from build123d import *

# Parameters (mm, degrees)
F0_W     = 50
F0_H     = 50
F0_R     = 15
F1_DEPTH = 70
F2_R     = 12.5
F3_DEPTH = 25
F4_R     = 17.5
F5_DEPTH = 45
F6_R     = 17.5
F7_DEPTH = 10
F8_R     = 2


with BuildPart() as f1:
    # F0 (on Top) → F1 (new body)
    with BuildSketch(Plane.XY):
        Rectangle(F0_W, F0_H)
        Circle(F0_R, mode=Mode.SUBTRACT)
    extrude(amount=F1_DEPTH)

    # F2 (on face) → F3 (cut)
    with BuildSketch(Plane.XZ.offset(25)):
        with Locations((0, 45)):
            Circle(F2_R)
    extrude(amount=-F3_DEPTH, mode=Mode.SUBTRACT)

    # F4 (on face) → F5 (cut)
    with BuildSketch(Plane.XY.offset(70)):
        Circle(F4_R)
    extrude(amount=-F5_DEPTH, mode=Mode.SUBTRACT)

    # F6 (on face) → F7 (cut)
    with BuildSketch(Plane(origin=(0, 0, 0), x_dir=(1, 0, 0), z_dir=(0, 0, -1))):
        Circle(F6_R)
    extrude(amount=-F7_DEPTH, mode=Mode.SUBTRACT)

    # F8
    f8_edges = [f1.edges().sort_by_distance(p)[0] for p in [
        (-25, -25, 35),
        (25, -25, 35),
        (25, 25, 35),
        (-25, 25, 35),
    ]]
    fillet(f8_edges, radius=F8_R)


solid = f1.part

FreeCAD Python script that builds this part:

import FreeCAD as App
import Part
import Sketcher

V = App.Vector


def edges_at(feature, points):
    """Names of the edges that pass closest to the given points."""
    edges = feature.Shape.Edges
    near = lambda p: min(range(len(edges)), key=lambda i: edges[i].distToShape(Part.Vertex(*p))[0])
    return sorted({f"Edge{near(p) + 1}" for p in points})


def add_polygon(sketch, points):
    """Adds a closed chain of lines whose ends are joined by coincident constraints."""
    first, n = sketch.GeometryCount, len(points)
    for a, b in zip(points, points[1:] + points[:1]):
        sketch.addGeometry(Part.LineSegment(App.Vector(*a, 0), App.Vector(*b, 0)), False)
    for i in range(n):
        sketch.addConstraint(Sketcher.Constraint("Coincident", first + i, 2, first + (i + 1) % n, 1))

doc = App.newDocument("Part")
params = doc.addObject("Spreadsheet::Sheet", "Params")
for row, (alias, value) in enumerate([
    ("sketch1_diameter", "30 mm"),
    ("sketch1_width", "50 mm"),
    ("pad1_length", "70 mm"),
    ("sketch2_diameter", "25 mm"),
    ("pocket1_length", "25 mm"),
    ("sketch3_diameter", "35 mm"),
    ("pocket2_length", "45 mm"),
    ("sketch4_diameter", "35 mm"),
    ("pocket3_length", "10 mm"),
    ("fillet_radius", "2 mm"),
], start=1):
    params.set(f"A{row}", alias)
    params.set(f"B{row}", "=" + value)
    params.setAlias(f"B{row}", alias)

body = doc.addObject("PartDesign::Body", "Body")

sketch1 = body.newObject("Sketcher::SketchObject", "Sketch")
sketch1.AttachmentSupport = (doc.getObject("XY_Plane"), [""])
sketch1.MapMode = "FlatFace"
add_polygon(sketch1, [(-25, 25), (-25, -25), (25, -25), (25, 25)])
sketch1.addGeometry(Part.Circle(V(0, 0, 0), V(0, 0, 1), 15), False)
sketch1.addConstraint([
    Sketcher.Constraint("Vertical", 0),
    Sketcher.Constraint("Horizontal", 1),
    Sketcher.Constraint("Vertical", 2),
    Sketcher.Constraint("Horizontal", 3),
    Sketcher.Constraint("Coincident", 4, 3, -1, 1),
    Sketcher.Constraint("Symmetric", 0, 2, 2, 2, -1, 1),
    Sketcher.Constraint("Equal", 3, 0),
    Sketcher.Constraint("Diameter", 4, 30.0),
    Sketcher.Constraint("DistanceX", 1, 1, 1, 2, 50.0),
])
sketch1.setExpression("Constraints[11]", "Params.sketch1_diameter")
sketch1.setExpression("Constraints[12]", "Params.sketch1_width")
pad1 = body.newObject("PartDesign::Pad", "Pad")
pad1.Profile = sketch1
pad1.setExpression("Length", "Params.pad1_length")

sketch2 = body.newObject("Sketcher::SketchObject", "Sketch001")
sketch2.AttachmentSupport = (doc.getObject("XZ_Plane"), [""])
sketch2.MapMode = "FlatFace"
sketch2.AttachmentOffset = App.Placement(V(0, 0, 25), App.Rotation())
sketch2.addGeometry(Part.Circle(V(0, 45, 0), V(0, 0, 1), 12), False)
sketch2.addConstraint([
    Sketcher.Constraint("PointOnObject", 0, 3, -2),
    Sketcher.Constraint("Diameter", 0, 25.0),
    Sketcher.Constraint("DistanceY", -1, 1, 0, 3, 45.0),
])
sketch2.setExpression("Constraints[1]", "Params.sketch2_diameter")
pocket1 = body.newObject("PartDesign::Pocket", "Pocket")
pocket1.Profile = sketch2
pocket1.setExpression("Length", "Params.pocket1_length")

sketch3 = body.newObject("Sketcher::SketchObject", "Sketch002")
sketch3.AttachmentSupport = (doc.getObject("XY_Plane"), [""])
sketch3.MapMode = "FlatFace"
sketch3.AttachmentOffset = App.Placement(V(0, 0, 70), App.Rotation())
sketch3.addGeometry(Part.Circle(V(0, 0, 0), V(0, 0, 1), 18), False)
sketch3.addConstraint([
    Sketcher.Constraint("Coincident", 0, 3, -1, 1),
    Sketcher.Constraint("Diameter", 0, 35.0),
])
sketch3.setExpression("Constraints[1]", "Params.sketch3_diameter")
pocket2 = body.newObject("PartDesign::Pocket", "Pocket001")
pocket2.Profile = sketch3
pocket2.setExpression("Length", "Params.pocket2_length")

sketch4 = body.newObject("Sketcher::SketchObject", "Sketch003")
sketch4.AttachmentSupport = (doc.getObject("XY_Plane"), [""])
sketch4.MapMode = "FlatFace"
sketch4.addGeometry(Part.Circle(V(0, 0, 0), V(0, 0, 1), 18), False)
sketch4.addConstraint([
    Sketcher.Constraint("Coincident", 0, 3, -1, 1),
    Sketcher.Constraint("Diameter", 0, 35.0),
])
sketch4.setExpression("Constraints[1]", "Params.sketch4_diameter")
pocket3 = body.newObject("PartDesign::Pocket", "Pocket002")
pocket3.Profile = sketch4
pocket3.setExpression("Length", "Params.pocket3_length")
pocket3.Reversed = True
doc.recompute()

fillet = body.newObject("PartDesign::Fillet", "Fillet")
fillet.Base = (pocket3, edges_at(pocket3, [
    (-25, -25, 35),
    (25, -25, 35),
    (25, 25, 35),
    (-25, 25, 35),
]))
fillet.setExpression("Radius", "Params.fillet_radius")

doc.recompute()
